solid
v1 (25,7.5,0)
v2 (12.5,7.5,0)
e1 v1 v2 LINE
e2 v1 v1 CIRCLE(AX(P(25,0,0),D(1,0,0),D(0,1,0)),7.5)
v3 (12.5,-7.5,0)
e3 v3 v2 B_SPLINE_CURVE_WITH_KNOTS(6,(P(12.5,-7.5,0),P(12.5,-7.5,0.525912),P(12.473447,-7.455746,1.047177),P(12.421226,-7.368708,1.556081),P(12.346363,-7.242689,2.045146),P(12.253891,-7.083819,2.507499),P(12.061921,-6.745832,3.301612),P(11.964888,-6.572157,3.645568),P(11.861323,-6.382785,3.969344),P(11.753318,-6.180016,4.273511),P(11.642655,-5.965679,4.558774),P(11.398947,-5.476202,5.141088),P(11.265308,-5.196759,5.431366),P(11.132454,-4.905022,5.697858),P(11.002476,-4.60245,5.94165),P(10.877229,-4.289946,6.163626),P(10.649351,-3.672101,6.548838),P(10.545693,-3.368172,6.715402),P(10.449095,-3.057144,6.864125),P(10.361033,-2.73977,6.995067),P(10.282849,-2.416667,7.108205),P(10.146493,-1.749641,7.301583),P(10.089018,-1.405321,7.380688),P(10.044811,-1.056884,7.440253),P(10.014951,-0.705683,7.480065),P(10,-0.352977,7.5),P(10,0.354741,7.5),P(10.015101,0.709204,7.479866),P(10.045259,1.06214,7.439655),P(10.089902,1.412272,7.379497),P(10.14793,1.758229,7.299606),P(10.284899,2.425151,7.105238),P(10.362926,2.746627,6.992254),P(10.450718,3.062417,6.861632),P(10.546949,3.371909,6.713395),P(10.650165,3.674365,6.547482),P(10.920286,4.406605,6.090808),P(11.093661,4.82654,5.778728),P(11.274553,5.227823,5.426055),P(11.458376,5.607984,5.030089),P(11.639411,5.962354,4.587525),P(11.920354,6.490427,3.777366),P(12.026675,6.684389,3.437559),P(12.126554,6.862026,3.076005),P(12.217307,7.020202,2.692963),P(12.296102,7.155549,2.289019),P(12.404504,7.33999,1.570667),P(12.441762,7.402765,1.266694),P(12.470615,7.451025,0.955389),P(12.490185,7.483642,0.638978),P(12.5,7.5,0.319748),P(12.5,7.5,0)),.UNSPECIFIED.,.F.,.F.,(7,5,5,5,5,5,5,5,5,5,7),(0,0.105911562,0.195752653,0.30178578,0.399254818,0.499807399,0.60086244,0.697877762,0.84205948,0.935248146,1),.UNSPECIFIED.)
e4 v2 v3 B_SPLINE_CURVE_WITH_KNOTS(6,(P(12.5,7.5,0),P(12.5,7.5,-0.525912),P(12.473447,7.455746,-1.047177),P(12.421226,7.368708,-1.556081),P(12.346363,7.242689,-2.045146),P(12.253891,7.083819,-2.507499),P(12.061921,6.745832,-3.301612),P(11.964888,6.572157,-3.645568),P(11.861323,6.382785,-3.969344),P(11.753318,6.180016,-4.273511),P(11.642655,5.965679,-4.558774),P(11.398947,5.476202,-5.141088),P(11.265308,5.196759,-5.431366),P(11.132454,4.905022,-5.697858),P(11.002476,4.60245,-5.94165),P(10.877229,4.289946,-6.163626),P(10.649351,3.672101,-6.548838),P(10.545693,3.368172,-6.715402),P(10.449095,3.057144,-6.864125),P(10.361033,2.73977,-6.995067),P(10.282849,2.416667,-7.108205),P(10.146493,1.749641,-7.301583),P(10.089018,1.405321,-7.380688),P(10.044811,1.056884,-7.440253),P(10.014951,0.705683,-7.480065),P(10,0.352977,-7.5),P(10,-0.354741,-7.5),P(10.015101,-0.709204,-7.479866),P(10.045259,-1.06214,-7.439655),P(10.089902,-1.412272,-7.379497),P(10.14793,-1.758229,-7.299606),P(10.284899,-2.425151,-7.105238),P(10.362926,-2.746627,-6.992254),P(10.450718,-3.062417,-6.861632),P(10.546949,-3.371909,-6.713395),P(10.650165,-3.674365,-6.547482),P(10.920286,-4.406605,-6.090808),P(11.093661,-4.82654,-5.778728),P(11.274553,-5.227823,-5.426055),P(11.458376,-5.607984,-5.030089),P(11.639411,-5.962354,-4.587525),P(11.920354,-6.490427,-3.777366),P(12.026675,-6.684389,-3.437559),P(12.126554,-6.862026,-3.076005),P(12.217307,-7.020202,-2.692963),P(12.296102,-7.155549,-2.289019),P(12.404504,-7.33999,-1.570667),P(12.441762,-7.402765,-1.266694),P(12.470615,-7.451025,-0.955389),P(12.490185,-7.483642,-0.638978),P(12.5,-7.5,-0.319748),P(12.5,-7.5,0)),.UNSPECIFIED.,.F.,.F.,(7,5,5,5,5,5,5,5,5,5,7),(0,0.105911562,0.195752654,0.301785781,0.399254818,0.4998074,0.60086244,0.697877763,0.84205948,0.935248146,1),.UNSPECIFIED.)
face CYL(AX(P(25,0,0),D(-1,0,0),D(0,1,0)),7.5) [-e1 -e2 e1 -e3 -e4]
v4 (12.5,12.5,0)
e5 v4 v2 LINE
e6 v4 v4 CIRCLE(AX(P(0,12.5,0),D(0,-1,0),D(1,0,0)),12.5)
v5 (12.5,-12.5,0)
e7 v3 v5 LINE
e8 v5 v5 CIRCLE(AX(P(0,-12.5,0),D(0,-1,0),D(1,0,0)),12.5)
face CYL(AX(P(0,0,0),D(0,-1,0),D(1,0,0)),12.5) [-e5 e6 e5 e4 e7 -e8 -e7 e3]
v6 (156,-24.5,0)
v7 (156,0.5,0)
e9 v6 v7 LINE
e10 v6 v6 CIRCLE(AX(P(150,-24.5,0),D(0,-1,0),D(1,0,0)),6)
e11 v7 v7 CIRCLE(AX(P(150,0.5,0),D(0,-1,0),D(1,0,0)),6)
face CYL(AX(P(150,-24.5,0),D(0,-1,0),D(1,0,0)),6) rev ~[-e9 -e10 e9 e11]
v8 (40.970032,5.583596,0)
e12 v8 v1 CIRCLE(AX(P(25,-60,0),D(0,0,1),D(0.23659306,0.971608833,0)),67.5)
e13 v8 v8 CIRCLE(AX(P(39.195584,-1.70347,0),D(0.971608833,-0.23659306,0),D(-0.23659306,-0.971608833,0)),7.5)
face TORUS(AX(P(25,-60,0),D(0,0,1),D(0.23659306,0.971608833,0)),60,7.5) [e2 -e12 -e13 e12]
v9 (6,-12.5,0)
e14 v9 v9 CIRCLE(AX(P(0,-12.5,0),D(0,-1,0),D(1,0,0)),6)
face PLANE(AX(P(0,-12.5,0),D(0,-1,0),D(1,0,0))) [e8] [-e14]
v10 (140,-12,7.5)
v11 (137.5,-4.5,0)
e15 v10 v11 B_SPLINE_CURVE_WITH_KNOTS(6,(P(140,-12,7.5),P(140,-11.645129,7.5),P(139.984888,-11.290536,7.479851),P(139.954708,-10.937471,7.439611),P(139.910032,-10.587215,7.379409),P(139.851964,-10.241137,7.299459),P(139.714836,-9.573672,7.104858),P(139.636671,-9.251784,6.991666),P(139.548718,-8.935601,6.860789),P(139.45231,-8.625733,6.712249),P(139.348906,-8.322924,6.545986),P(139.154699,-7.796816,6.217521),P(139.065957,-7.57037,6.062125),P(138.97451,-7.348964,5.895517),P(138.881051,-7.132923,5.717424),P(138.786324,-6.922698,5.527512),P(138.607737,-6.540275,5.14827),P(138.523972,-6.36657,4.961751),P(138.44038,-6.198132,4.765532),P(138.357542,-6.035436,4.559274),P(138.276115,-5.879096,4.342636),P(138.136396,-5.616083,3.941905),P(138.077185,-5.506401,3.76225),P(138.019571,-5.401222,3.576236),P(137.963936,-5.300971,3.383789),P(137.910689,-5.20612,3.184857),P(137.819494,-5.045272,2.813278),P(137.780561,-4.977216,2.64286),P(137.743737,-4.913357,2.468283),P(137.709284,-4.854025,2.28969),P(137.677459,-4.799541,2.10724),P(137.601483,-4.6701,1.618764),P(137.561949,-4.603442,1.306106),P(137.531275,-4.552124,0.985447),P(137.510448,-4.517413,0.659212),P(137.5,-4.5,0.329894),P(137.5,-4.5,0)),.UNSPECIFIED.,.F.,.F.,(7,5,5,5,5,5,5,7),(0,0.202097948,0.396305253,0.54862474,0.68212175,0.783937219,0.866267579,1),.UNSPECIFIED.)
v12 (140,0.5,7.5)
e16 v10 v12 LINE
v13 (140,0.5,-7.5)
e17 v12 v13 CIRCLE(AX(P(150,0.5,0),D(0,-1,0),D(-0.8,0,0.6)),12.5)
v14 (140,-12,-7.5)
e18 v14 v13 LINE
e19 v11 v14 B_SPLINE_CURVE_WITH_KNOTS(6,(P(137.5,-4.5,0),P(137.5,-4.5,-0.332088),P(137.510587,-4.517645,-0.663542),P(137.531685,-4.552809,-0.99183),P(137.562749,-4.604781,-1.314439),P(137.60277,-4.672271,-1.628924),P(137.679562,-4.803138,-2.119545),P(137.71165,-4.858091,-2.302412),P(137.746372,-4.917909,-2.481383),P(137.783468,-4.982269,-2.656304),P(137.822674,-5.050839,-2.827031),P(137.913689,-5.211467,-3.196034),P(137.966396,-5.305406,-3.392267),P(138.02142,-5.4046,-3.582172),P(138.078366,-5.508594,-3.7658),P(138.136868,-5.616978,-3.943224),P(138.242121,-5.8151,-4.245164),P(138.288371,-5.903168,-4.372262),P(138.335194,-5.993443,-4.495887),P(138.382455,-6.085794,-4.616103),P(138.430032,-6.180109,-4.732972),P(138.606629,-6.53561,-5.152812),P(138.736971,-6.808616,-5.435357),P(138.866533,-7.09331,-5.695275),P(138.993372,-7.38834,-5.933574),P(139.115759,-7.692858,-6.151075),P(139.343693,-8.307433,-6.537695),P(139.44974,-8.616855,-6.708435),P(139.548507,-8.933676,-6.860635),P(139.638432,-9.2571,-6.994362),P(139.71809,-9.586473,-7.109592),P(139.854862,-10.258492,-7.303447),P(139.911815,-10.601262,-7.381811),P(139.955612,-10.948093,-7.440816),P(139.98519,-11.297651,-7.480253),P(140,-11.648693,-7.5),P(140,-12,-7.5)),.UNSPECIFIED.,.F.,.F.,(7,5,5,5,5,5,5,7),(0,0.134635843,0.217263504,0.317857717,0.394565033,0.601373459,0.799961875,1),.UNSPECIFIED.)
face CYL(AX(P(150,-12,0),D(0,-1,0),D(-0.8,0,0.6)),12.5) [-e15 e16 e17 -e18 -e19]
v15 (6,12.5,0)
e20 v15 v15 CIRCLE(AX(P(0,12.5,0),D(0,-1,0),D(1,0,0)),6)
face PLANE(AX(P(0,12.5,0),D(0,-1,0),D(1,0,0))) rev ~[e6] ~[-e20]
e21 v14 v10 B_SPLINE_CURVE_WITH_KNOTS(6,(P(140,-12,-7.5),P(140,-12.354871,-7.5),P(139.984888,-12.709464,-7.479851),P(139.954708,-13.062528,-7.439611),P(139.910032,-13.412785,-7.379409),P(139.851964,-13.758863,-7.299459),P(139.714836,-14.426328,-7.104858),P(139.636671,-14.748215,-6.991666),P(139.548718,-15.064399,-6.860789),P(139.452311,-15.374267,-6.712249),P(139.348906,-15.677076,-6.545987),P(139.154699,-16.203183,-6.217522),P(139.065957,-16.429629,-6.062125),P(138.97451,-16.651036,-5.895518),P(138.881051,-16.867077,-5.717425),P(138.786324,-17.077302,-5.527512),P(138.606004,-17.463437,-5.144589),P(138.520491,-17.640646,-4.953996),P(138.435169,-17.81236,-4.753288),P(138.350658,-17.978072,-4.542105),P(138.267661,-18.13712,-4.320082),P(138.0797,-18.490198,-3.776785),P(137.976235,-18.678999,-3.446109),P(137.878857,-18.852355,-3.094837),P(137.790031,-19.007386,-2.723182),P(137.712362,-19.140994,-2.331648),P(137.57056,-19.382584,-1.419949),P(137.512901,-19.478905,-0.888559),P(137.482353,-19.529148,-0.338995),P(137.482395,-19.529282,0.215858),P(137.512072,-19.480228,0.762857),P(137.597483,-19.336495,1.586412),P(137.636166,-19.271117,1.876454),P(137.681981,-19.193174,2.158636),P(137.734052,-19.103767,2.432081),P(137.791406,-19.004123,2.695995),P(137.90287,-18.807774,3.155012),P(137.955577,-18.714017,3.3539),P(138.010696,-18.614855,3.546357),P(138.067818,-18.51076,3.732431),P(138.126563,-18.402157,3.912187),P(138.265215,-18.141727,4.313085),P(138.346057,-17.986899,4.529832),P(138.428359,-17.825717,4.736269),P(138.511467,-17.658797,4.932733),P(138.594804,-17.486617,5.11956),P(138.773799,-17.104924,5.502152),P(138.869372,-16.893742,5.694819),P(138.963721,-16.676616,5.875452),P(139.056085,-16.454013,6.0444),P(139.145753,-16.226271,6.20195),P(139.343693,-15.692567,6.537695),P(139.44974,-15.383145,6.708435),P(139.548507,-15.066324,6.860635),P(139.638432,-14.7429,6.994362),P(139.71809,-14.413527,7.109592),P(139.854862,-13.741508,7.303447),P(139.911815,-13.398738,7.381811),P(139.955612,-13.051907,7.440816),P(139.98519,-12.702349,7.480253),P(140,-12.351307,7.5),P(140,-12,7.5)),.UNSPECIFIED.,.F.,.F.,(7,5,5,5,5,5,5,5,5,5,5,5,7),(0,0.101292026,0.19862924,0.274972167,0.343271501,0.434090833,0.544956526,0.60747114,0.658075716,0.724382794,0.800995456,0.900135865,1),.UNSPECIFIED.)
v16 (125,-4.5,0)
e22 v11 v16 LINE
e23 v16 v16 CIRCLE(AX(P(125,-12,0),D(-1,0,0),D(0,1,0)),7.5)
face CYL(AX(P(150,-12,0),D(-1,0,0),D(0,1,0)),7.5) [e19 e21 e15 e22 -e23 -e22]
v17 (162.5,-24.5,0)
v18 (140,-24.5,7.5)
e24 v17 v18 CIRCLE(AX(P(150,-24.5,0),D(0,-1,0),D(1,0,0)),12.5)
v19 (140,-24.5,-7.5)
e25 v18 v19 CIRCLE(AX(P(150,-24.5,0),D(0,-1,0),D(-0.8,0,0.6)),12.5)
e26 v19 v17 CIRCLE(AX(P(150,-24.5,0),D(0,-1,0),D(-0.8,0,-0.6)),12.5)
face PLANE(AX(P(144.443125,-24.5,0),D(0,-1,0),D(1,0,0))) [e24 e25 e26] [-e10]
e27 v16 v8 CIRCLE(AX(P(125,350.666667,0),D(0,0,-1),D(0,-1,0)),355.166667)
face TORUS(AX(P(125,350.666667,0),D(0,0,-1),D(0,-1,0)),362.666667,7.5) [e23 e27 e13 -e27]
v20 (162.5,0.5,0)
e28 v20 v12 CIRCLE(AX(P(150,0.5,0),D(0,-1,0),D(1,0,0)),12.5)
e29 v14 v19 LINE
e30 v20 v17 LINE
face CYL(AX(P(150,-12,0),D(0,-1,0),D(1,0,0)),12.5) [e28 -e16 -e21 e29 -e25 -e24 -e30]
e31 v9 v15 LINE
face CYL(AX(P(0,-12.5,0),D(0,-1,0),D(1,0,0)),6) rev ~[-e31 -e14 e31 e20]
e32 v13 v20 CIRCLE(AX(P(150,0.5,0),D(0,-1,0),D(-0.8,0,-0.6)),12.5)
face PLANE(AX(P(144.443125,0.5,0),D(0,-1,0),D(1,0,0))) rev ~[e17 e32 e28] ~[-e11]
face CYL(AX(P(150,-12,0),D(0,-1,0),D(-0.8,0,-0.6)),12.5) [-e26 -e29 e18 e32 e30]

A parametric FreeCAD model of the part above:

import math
import FreeCAD as App
import Part
import Sketcher

doc = App.newDocument("Part")
params = doc.addObject("Spreadsheet::Sheet", "Params")
for row, (alias, value) in enumerate([
    ("sketch1_diameter", "15 mm"),
    ("sketch2_radius", "60 mm"),
    ("sketch2_width", "25 mm"),
    ("sketch3_diameter", "25 mm"),
    ("pad1_length", "25 mm"),
    ("sketch4_diameter", "12 mm"),
    ("pocket1_length", "25 mm"),
    ("sketch5_radius", "12.5 mm"),
    ("pad2_length", "25 mm"),
    ("sketch6_diameter", "12 mm"),
    ("pocket2_length", "25 mm"),
], start=1):
    params.set(f"A{row}", alias)
    params.set(f"B{row}", "=" + value)
    params.setAlias(f"B{row}", alias)

body = doc.addObject("PartDesign::Body", "Body")

# Sketch on YZ plane
sketch1 = body.newObject("Sketcher::SketchObject", "Sketch")
sketch1.AttachmentSupport = (doc.getObject("YZ_Plane"), [""])
sketch1.MapMode = "FlatFace"
sketch1.addGeometry(Part.Circle(App.Vector(0, 0, 0), App.Vector(0, 0, 1), 7.5), False)
sketch1.addConstraint([
    Sketcher.Constraint("Coincident", 0, 3, -1, 1),
    Sketcher.Constraint("Diameter", 0, 15.0),
])
sketch1.setExpression("Constraints[1]", "Params.sketch1_diameter")

# Sketch on XY plane
sketch2 = body.newObject("Sketcher::SketchObject", "Sketch001")
sketch2.AttachmentSupport = (doc.getObject("XY_Plane"), [""])
sketch2.MapMode = "FlatFace"
sketch2.addGeometry([
    Part.LineSegment(App.Vector(150, -12, 0), App.Vector(125, -12, 0)),
    Part.ArcOfCircle(Part.Circle(App.Vector(125, 350.666667, 0), App.Vector(0, 0, 1), 362.666667), math.radians(-103.685547), math.radians(-90)),
    Part.ArcOfCircle(Part.Circle(App.Vector(25, -60, 0), App.Vector(0, 0, 1), 60), math.radians(76.314453), math.radians(90)),
    Part.LineSegment(App.Vector(25, 0, 0), App.Vector(0, 0, 0)),
], False)
sketch2.addConstraint([
    Sketcher.Constraint("Tangent", 0, 2, 1, 2),
    Sketcher.Constraint("Tangent", 1, 1, 2, 1),
    Sketcher.Constraint("Tangent", 2, 2, 3, 1),
    Sketcher.Constraint("Horizontal", 0),
    Sketcher.Constraint("Horizontal", 3),
    Sketcher.Constraint("Coincident", 3, 2, -1, 1),
    Sketcher.Constraint("Equal", 0, 3),
    Sketcher.Constraint("Radius", 2, 60.0),
    Sketcher.Constraint("DistanceX", 0, 2, 0, 1, 25.0),
    Sketcher.Constraint("DistanceX", -1, 1, 1, 3, 125.0),
    Sketcher.Constraint("DistanceY", 0, 1, -1, 1, 12.0),
])
sketch2.setExpression("Constraints[7]", "Params.sketch2_radius")
sketch2.setExpression("Constraints[8]", "Params.sketch2_width")
doc.recompute()

additivepipe = body.newObject("PartDesign::AdditivePipe", "AdditivePipe")
additivepipe.Profile = sketch1
additivepipe.Spine = (sketch2, ["Edge1", "Edge2", "Edge3", "Edge4"])

# Sketch on XZ plane
sketch3 = body.newObject("Sketcher::SketchObject", "Sketch002")
sketch3.AttachmentSupport = (doc.getObject("XZ_Plane"), [""])
sketch3.MapMode = "FlatFace"
sketch3.addGeometry(Part.Circle(App.Vector(0, 0, 0), App.Vector(0, 0, 1), 12.5), False)
sketch3.addConstraint([
    Sketcher.Constraint("Coincident", 0, 3, -1, 1),
    Sketcher.Constraint("Diameter", 0, 25.0),
])
sketch3.setExpression("Constraints[1]", "Params.sketch3_diameter")
pad1 = body.newObject("PartDesign::Pad", "Pad")
pad1.Profile = sketch3
pad1.setExpression("Length", "Params.pad1_length")
pad1.Midplane = True

# Sketch on XZ plane
sketch4 = body.newObject("Sketcher::SketchObject", "Sketch003")
sketch4.AttachmentSupport = (doc.getObject("XZ_Plane"), [""])
sketch4.MapMode = "FlatFace"
sketch4.AttachmentOffset = App.Placement(App.Vector(0, 0, 12.5), App.Rotation())
sketch4.addGeometry(Part.Circle(App.Vector(0, 0, 0), App.Vector(0, 0, 1), 6), False)
sketch4.addConstraint([
    Sketcher.Constraint("Coincident", 0, 3, -1, 1),
    Sketcher.Constraint("Diameter", 0, 12.0),
])
sketch4.setExpression("Constraints[1]", "Params.sketch4_diameter")
pocket1 = body.newObject("PartDesign::Pocket", "Pocket")
pocket1.Profile = sketch4
pocket1.setExpression("Length", "Params.pocket1_length")

# Sketch on XZ plane
sketch5 = body.newObject("Sketcher::SketchObject", "Sketch004")
sketch5.AttachmentSupport = (doc.getObject("XZ_Plane"), [""])
sketch5.MapMode = "FlatFace"
sketch5.AttachmentOffset = App.Placement(App.Vector(0, 0, 12), App.Rotation())
sketch5.addGeometry([
    Part.ArcOfCircle(Part.Circle(App.Vector(150, 0, 0), App.Vector(0, 0, 1), 12.5), math.radians(143.130102), math.radians(216.869898)),
    Part.ArcOfCircle(Part.Circle(App.Vector(150, 0, 0), App.Vector(0, 0, 1), 12.5), math.radians(-143.130102), math.radians(0)),
    Part.ArcOfCircle(Part.Circle(App.Vector(150, 0, 0), App.Vector(0, 0, 1), 12.5), math.radians(0), math.radians(143.130102)),
], False)
sketch5.addConstraint([
    Sketcher.Constraint("Tangent", 0, 2, 1, 1),
    Sketcher.Constraint("Tangent", 1, 2, 2, 1),
    Sketcher.Constraint("Tangent", 2, 2, 0, 1),
    Sketcher.Constraint("Symmetric", 0, 2, 2, 2, -1),
    Sketcher.Constraint("PointOnObject", 1, 2, -1),
    Sketcher.Constraint("Radius", 0, 12.5),
    Sketcher.Constraint("DistanceX", -1, 1, 0, 3, 150.0),
    Sketcher.Constraint("DistanceX", -1, 1, 0, 2, 140.0),
])
sketch5.setExpression("Constraints[5]", "Params.sketch5_radius")
pad2 = body.newObject("PartDesign::Pad", "Pad001")
pad2.Profile = sketch5
pad2.setExpression("Length", "Params.pad2_length")
pad2.Midplane = True

# Sketch on XZ plane
sketch6 = body.newObject("Sketcher::SketchObject", "Sketch005")
sketch6.AttachmentSupport = (doc.getObject("XZ_Plane"), [""])
sketch6.MapMode = "FlatFace"
sketch6.AttachmentOffset = App.Placement(App.Vector(0, 0, 24.5), App.Rotation())
sketch6.addGeometry(Part.Circle(App.Vector(150, 0, 0), App.Vector(0, 0, 1), 6), False)
sketch6.addConstraint([
    Sketcher.Constraint("PointOnObject", 0, 3, -1),
    Sketcher.Constraint("Diameter", 0, 12.0),
    Sketcher.Constraint("DistanceX", -1, 1, 0, 3, 150.0),
])
sketch6.setExpression("Constraints[1]", "Params.sketch6_diameter")
pocket2 = body.newObject("PartDesign::Pocket", "Pocket001")
pocket2.Profile = sketch6
pocket2.setExpression("Length", "Params.pocket2_length")

doc.recompute()
